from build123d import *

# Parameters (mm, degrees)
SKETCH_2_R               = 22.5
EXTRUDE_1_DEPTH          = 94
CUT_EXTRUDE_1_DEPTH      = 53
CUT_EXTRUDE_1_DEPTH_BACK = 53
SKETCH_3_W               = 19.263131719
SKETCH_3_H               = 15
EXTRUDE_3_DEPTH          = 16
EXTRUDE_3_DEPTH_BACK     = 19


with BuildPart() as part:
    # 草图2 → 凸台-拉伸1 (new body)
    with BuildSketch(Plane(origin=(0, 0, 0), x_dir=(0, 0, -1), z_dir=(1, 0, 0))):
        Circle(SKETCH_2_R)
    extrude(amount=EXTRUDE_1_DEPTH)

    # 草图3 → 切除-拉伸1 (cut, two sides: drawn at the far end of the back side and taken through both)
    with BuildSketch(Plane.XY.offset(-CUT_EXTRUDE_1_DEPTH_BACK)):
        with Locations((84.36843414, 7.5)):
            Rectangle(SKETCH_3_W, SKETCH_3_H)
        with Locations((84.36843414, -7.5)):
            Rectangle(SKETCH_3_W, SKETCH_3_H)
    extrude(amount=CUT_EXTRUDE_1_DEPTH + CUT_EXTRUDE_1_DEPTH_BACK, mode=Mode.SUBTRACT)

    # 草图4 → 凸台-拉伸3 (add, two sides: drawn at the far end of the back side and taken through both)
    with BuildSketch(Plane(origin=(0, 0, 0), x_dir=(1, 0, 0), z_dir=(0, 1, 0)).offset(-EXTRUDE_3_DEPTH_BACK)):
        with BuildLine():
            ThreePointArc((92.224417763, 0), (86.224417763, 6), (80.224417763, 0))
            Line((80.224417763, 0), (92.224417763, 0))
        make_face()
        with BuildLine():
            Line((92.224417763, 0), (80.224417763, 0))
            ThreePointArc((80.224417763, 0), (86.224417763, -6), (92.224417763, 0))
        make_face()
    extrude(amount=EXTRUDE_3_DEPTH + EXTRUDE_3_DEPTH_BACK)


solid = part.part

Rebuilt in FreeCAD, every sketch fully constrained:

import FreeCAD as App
import Part
import Sketcher
from FreeCAD import Vector
Q = App.Units.Quantity


def add_polygon(sketch, points):
    """Adds a closed chain of lines whose ends are joined by coincident constraints."""
    first, n = sketch.GeometryCount, len(points)
    for a, b in zip(points, points[1:] + points[:1]):
        sketch.addGeometry(Part.LineSegment(App.Vector(*a, 0), App.Vector(*b, 0)), False)
    for i in range(n):
        sketch.addConstraint(Sketcher.Constraint("Coincident", first + i, 2, first + (i + 1) % n, 1))

doc = App.newDocument("Part")
body = doc.addObject("PartDesign::Body", "Body")

# Sketch on YZ plane
sketch1 = body.newObject("Sketcher::SketchObject", "Sketch")
sketch1.AttachmentSupport = (doc.getObject("YZ_Plane"), [""])
sketch1.MapMode = "FlatFace"
sketch1.addGeometry(Part.Circle(Vector(0, 0, 0), Vector(0, 0, 1), 22), False)
sketch1.addConstraint(Sketcher.Constraint("Coincident", 0, 3, -1, 1))
sketch1.addConstraint(Sketcher.Constraint("Diameter", 0, Q("45 mm")))
pad1 = body.newObject("PartDesign::Pad", "Pad")
pad1.Profile = sketch1
pad1.Length = 94

# Sketch on XY plane
sketch2 = body.newObject("Sketcher::SketchObject", "Sketch001")
sketch2.AttachmentSupport = (doc.getObject("XY_Plane"), [""])
sketch2.MapMode = "FlatFace"
add_polygon(sketch2, [(75, 15), (75, -15), (94, -15), (94, 15)])  # lines 0-3
sketch2.addConstraint(Sketcher.Constraint("Vertical", 0))
sketch2.addConstraint(Sketcher.Constraint("Horizontal", 1))
sketch2.addConstraint(Sketcher.Constraint("Vertical", 2))
sketch2.addConstraint(Sketcher.Constraint("Horizontal", 3))
sketch2.addConstraint(Sketcher.Constraint("DistanceY", 0, 2, 0, 1, Q("30 mm")))
sketch2.addConstraint(Sketcher.Constraint("DistanceY", 0, 2, -1, 1, Q("15 mm")))
sketch2.addConstraint(Sketcher.Constraint("DistanceX", -1, 1, 1, 2, Q("94 mm")))
sketch2.addConstraint(Sketcher.Constraint("DistanceX", 1, 1, 1, 2, Q("19.263132 mm")))
pocket1 = body.newObject("PartDesign::Pocket", "Pocket")
pocket1.Profile = sketch2
pocket1.Type = "ThroughAll"
pocket1.Midplane = True

# Sketch on XZ plane
sketch3 = body.newObject("Sketcher::SketchObject", "Sketch002")
sketch3.AttachmentSupport = (doc.getObject("XZ_Plane"), [""])
sketch3.MapMode = "FlatFace"
sketch3.addGeometry(Part.Circle(Vector(86, 0, 0), Vector(0, 0, 1), 6), False)
sketch3.addConstraint(Sketcher.Constraint("PointOnObject", 0, 3, -1))
sketch3.addConstraint(Sketcher.Constraint("Diameter", 0, Q("12 mm")))
sketch3.addConstraint(Sketcher.Constraint("DistanceX", -1, 1, 0, 3, Q("86.224418 mm")))
pad2 = body.newObject("PartDesign::Pad", "Pad001")
pad2.Profile = sketch3
pad2.Type = "TwoLengths"
pad2.Length = 16
pad2.Length2 = 19
pad2.Reversed = True

doc.recompute()
